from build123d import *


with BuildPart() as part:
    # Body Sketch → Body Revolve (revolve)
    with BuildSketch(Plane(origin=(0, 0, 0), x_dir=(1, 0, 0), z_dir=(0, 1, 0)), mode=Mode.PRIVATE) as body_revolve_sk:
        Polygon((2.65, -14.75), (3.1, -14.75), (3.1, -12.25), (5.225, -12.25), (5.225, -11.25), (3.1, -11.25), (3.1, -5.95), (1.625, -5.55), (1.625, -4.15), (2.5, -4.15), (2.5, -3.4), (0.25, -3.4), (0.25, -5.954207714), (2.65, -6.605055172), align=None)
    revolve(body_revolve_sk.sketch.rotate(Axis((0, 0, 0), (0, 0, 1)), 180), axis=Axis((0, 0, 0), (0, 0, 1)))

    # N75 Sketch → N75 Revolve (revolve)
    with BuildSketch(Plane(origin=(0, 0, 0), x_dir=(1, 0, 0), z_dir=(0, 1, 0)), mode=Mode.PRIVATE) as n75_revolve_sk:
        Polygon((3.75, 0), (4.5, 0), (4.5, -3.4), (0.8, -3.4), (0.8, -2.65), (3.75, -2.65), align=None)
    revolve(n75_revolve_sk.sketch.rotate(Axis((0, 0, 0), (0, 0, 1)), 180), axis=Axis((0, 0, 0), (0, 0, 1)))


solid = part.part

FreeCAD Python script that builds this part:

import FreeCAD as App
import Part
import Sketcher

V = App.Vector


def add_polygon(sketch, points):
    """Adds a closed chain of lines whose ends are joined by coincident constraints."""
    first, n = sketch.GeometryCount, len(points)
    for a, b in zip(points, points[1:] + points[:1]):
        sketch.addGeometry(Part.LineSegment(App.Vector(*a, 0), App.Vector(*b, 0)), False)
    for i in range(n):
        sketch.addConstraint(Sketcher.Constraint("Coincident", first + i, 2, first + (i + 1) % n, 1))

doc = App.newDocument("Part")
body = doc.addObject("PartDesign::Body", "Body")

# Sketch on XZ plane
sketch1 = body.newObject("Sketcher::SketchObject", "Sketch")
sketch1.AttachmentSupport = (doc.getObject("XZ_Plane"), [""])
sketch1.MapMode = "FlatFace"
add_polygon(sketch1, [(2.65, 14.75), (3.1, 14.75), (3.1, 12.25), (5.22, 12.25), (5.22, 11.25), (3.1, 11.25), (3.1, 5.95), (1.62, 5.55), (1.62, 4.15), (2.5, 4.15), (2.5, 3.4), (0.25, 3.4), (0.25, 5.95), (2.65, 6.61)])  # lines 0-13
sketch1.addConstraint([
    Sketcher.Constraint("Horizontal", 0),
    Sketcher.Constraint("Vertical", 1),
    Sketcher.Constraint("Horizontal", 2),
    Sketcher.Constraint("Vertical", 3),
    Sketcher.Constraint("Horizontal", 4),
    Sketcher.Constraint("Vertical", 5),
    Sketcher.Constraint("Vertical", 7),
    Sketcher.Constraint("Horizontal", 8),
    Sketcher.Constraint("Vertical", 9),
    Sketcher.Constraint("Horizontal", 10),
    Sketcher.Constraint("Vertical", 11),
    Sketcher.Constraint("Vertical", 13),
    Sketcher.Constraint("Parallel", 6, 12),
    Sketcher.Constraint("Vertical", 1, 2, 4, 2),
    Sketcher.Constraint("DistanceY", 3, 2, 3, 1, 1.0),
    Sketcher.Constraint("DistanceY", 1, 2, 1, 1, 2.5),
    Sketcher.Constraint("DistanceY", 5, 2, 5, 1, 5.3),
    Sketcher.Constraint("DistanceY", 7, 2, 7, 1, 1.4),
    Sketcher.Constraint("DistanceX", 0, 1, 0, 2, 0.45),
    Sketcher.Constraint("DistanceX", 10, 2, 10, 1, 2.25),
    Sketcher.Constraint("DistanceY", 9, 2, 9, 1, 0.75),
    Sketcher.Constraint("DistanceX", -1, 1, 0, 2, 3.1),
    Sketcher.Constraint("DistanceX", -1, 1, 8, 2, 2.5),
    Sketcher.Constraint("DistanceY", -1, 1, 9, 2, 3.4),
    Sketcher.Constraint("DistanceY", 6, 2, 5, 2, 0.4),
    Sketcher.Constraint("DistanceX", 6, 2, 3, 2, 3.6),
    Sketcher.Constraint("DistanceX", 2, 1, 2, 2, 2.125),
    Sketcher.Constraint("DistanceY", 11, 1, 11, 2, 2.554208),
])
revolution = body.newObject("PartDesign::Revolution", "Revolution")
revolution.Profile = sketch1
revolution.ReferenceAxis = (sketch1, ["V_Axis"])
revolution.Angle = 360

# Sketch on XZ plane
sketch2 = body.newObject("Sketcher::SketchObject", "Sketch001")
sketch2.AttachmentSupport = (doc.getObject("XZ_Plane"), [""])
sketch2.MapMode = "FlatFace"
add_polygon(sketch2, [(4.5, 0), (3.8, 0), (3.8, 2.6), (0.8, 2.6), (0.8, 3.4), (4.5, 3.4)])  # lines 0-5
sketch2.addConstraint([
    Sketcher.Constraint("Horizontal", 0),
    Sketcher.Constraint("Vertical", 1),
    Sketcher.Constraint("Horizontal", 2),
    Sketcher.Constraint("Vertical", 3),
    Sketcher.Constraint("Horizontal", 4),
    Sketcher.Constraint("Vertical", 5),
    Sketcher.Constraint("PointOnObject", 0, 2, -1),
    Sketcher.Constraint("Equal", 0, 3),
    Sketcher.Constraint("DistanceX", 4, 1, 4, 2, 3.7),
    Sketcher.Constraint("DistanceY", 5, 2, 5, 1, 3.4),
    Sketcher.Constraint("DistanceX", 0, 2, 0, 1, 0.75),
    Sketcher.Constraint("DistanceX", -1, 1, 2, 2, 0.8),
])
revolution2 = body.newObject("PartDesign::Revolution", "Revolution001")
revolution2.Profile = sketch2
revolution2.ReferenceAxis = (sketch2, ["V_Axis"])
revolution2.Angle = 360

doc.recompute()
